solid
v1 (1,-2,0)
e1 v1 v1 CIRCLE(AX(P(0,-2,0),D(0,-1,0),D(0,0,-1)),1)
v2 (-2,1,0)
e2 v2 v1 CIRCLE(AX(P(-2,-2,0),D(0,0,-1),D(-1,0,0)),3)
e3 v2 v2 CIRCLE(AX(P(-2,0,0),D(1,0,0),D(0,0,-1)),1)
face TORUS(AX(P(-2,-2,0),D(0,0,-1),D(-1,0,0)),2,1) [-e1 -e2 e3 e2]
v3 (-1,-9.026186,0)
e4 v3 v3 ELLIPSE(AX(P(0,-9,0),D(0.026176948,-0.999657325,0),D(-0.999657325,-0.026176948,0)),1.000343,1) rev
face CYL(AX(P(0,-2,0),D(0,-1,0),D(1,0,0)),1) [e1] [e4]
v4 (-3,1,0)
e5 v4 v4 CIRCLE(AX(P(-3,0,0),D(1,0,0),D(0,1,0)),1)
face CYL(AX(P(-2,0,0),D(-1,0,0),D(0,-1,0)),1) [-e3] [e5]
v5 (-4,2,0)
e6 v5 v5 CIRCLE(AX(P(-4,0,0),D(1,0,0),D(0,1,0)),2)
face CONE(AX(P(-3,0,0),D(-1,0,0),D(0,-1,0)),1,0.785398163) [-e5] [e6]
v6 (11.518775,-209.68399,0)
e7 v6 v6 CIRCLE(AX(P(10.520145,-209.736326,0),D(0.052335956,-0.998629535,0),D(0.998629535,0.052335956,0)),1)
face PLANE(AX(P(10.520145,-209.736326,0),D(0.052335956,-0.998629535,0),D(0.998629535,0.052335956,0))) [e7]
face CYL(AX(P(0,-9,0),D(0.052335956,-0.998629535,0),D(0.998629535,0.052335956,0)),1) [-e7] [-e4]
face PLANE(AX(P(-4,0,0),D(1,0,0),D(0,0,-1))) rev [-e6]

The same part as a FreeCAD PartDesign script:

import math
import FreeCAD as App
import Part
import Sketcher

V = App.Vector
Q = App.Units.Quantity


def add_polygon(sketch, points):
    """Adds a closed chain of lines whose ends are joined by coincident constraints."""
    first, n = sketch.GeometryCount, len(points)
    for a, b in zip(points, points[1:] + points[:1]):
        sketch.addGeometry(Part.LineSegment(App.Vector(*a, 0), App.Vector(*b, 0)), False)
    for i in range(n):
        sketch.addConstraint(Sketcher.Constraint("Coincident", first + i, 2, first + (i + 1) % n, 1))

doc = App.newDocument("Part")
body = doc.addObject("PartDesign::Body", "Body")

# Sketch on YZ plane
sketch1 = body.newObject("Sketcher::SketchObject", "Sketch")
sketch1.AttachmentSupport = (doc.getObject("YZ_Plane"), [""])
sketch1.MapMode = "FlatFace"
sketch1.AttachmentOffset = App.Placement(V(0, 0, -4), App.Rotation())
sketch1.addGeometry(Part.Circle(V(0, 0, 0), V(0, 0, 1), 1), False)
sketch1.addConstraint([
    Sketcher.Constraint("Coincident", 0, 3, -1, 1),
    Sketcher.Constraint("Diameter", 0, Q("2 mm")),
])

# Sketch on XY plane
sketch2 = body.newObject("Sketcher::SketchObject", "Sketch001")
sketch2.AttachmentSupport = (doc.getObject("XY_Plane"), [""])
sketch2.MapMode = "FlatFace"
sketch2.addGeometry([
    Part.LineSegment(V(-4, 0, 0), V(-2, 0, 0)),
    Part.ArcOfCircle(Part.Circle(V(-2, -2, 0), V(0, 0, 1), 2), math.radians(0), math.radians(90)),
    Part.LineSegment(V(0, -2, 0), V(0, -9, 0)),
    Part.LineSegment(V(0, -9, 0), V(10.5, -209.7, 0)),
], False)
sketch2.addConstraint([
    Sketcher.Constraint("Tangent", 0, 2, 1, 2),
    Sketcher.Constraint("Tangent", 1, 1, 2, 1),
    Sketcher.Constraint("Coincident", 2, 2, 3, 1),
    Sketcher.Constraint("Horizontal", 0),
    Sketcher.Constraint("Vertical", 2),
    Sketcher.Constraint("PointOnObject", 0, 1, -1),
    Sketcher.Constraint("PointOnObject", 1, 1, -2),
    Sketcher.Constraint("Radius", 1, Q("2 mm")),
    Sketcher.Constraint("DistanceX", 0, 1, 0, 2, Q("2 mm")),
    Sketcher.Constraint("DistanceY", 2, 2, 2, 1, Q("7 mm")),
    Sketcher.Constraint("Angle", 3, Q("-87 deg")),
    Sketcher.Constraint("Distance", 3, Q("201.011806 mm")),
])
doc.recompute()

additivepipe = body.newObject("PartDesign::AdditivePipe", "AdditivePipe")
additivepipe.Profile = sketch1
additivepipe.Spine = (sketch2, ["Edge1", "Edge2", "Edge3", "Edge4"])
additivepipe.Transition = "Right corner"

# Sketch on XY plane
sketch3 = body.newObject("Sketcher::SketchObject", "Sketch002")
sketch3.AttachmentSupport = (doc.getObject("XY_Plane"), [""])
sketch3.MapMode = "FlatFace"
add_polygon(sketch3, [(-4, 2), (-4, 1), (-3, 1)])  # lines 0-2
sketch3.addConstraint([
    Sketcher.Constraint("Vertical", 0),
    Sketcher.Constraint("Horizontal", 1),
    Sketcher.Constraint("Equal", 1, 0),
    Sketcher.Constraint("DistanceX", 1, 1, 1, 2, Q("1 mm")),
    Sketcher.Constraint("DistanceX", 0, 2, -1, 1, Q("4 mm")),
    Sketcher.Constraint("DistanceY", -1, 1, 0, 2, Q("1 mm")),
])
revolution = body.newObject("PartDesign::Revolution", "Revolution")
revolution.Profile = sketch3
revolution.ReferenceAxis = (sketch3, ["H_Axis"])
revolution.Angle = 360

doc.recompute()
